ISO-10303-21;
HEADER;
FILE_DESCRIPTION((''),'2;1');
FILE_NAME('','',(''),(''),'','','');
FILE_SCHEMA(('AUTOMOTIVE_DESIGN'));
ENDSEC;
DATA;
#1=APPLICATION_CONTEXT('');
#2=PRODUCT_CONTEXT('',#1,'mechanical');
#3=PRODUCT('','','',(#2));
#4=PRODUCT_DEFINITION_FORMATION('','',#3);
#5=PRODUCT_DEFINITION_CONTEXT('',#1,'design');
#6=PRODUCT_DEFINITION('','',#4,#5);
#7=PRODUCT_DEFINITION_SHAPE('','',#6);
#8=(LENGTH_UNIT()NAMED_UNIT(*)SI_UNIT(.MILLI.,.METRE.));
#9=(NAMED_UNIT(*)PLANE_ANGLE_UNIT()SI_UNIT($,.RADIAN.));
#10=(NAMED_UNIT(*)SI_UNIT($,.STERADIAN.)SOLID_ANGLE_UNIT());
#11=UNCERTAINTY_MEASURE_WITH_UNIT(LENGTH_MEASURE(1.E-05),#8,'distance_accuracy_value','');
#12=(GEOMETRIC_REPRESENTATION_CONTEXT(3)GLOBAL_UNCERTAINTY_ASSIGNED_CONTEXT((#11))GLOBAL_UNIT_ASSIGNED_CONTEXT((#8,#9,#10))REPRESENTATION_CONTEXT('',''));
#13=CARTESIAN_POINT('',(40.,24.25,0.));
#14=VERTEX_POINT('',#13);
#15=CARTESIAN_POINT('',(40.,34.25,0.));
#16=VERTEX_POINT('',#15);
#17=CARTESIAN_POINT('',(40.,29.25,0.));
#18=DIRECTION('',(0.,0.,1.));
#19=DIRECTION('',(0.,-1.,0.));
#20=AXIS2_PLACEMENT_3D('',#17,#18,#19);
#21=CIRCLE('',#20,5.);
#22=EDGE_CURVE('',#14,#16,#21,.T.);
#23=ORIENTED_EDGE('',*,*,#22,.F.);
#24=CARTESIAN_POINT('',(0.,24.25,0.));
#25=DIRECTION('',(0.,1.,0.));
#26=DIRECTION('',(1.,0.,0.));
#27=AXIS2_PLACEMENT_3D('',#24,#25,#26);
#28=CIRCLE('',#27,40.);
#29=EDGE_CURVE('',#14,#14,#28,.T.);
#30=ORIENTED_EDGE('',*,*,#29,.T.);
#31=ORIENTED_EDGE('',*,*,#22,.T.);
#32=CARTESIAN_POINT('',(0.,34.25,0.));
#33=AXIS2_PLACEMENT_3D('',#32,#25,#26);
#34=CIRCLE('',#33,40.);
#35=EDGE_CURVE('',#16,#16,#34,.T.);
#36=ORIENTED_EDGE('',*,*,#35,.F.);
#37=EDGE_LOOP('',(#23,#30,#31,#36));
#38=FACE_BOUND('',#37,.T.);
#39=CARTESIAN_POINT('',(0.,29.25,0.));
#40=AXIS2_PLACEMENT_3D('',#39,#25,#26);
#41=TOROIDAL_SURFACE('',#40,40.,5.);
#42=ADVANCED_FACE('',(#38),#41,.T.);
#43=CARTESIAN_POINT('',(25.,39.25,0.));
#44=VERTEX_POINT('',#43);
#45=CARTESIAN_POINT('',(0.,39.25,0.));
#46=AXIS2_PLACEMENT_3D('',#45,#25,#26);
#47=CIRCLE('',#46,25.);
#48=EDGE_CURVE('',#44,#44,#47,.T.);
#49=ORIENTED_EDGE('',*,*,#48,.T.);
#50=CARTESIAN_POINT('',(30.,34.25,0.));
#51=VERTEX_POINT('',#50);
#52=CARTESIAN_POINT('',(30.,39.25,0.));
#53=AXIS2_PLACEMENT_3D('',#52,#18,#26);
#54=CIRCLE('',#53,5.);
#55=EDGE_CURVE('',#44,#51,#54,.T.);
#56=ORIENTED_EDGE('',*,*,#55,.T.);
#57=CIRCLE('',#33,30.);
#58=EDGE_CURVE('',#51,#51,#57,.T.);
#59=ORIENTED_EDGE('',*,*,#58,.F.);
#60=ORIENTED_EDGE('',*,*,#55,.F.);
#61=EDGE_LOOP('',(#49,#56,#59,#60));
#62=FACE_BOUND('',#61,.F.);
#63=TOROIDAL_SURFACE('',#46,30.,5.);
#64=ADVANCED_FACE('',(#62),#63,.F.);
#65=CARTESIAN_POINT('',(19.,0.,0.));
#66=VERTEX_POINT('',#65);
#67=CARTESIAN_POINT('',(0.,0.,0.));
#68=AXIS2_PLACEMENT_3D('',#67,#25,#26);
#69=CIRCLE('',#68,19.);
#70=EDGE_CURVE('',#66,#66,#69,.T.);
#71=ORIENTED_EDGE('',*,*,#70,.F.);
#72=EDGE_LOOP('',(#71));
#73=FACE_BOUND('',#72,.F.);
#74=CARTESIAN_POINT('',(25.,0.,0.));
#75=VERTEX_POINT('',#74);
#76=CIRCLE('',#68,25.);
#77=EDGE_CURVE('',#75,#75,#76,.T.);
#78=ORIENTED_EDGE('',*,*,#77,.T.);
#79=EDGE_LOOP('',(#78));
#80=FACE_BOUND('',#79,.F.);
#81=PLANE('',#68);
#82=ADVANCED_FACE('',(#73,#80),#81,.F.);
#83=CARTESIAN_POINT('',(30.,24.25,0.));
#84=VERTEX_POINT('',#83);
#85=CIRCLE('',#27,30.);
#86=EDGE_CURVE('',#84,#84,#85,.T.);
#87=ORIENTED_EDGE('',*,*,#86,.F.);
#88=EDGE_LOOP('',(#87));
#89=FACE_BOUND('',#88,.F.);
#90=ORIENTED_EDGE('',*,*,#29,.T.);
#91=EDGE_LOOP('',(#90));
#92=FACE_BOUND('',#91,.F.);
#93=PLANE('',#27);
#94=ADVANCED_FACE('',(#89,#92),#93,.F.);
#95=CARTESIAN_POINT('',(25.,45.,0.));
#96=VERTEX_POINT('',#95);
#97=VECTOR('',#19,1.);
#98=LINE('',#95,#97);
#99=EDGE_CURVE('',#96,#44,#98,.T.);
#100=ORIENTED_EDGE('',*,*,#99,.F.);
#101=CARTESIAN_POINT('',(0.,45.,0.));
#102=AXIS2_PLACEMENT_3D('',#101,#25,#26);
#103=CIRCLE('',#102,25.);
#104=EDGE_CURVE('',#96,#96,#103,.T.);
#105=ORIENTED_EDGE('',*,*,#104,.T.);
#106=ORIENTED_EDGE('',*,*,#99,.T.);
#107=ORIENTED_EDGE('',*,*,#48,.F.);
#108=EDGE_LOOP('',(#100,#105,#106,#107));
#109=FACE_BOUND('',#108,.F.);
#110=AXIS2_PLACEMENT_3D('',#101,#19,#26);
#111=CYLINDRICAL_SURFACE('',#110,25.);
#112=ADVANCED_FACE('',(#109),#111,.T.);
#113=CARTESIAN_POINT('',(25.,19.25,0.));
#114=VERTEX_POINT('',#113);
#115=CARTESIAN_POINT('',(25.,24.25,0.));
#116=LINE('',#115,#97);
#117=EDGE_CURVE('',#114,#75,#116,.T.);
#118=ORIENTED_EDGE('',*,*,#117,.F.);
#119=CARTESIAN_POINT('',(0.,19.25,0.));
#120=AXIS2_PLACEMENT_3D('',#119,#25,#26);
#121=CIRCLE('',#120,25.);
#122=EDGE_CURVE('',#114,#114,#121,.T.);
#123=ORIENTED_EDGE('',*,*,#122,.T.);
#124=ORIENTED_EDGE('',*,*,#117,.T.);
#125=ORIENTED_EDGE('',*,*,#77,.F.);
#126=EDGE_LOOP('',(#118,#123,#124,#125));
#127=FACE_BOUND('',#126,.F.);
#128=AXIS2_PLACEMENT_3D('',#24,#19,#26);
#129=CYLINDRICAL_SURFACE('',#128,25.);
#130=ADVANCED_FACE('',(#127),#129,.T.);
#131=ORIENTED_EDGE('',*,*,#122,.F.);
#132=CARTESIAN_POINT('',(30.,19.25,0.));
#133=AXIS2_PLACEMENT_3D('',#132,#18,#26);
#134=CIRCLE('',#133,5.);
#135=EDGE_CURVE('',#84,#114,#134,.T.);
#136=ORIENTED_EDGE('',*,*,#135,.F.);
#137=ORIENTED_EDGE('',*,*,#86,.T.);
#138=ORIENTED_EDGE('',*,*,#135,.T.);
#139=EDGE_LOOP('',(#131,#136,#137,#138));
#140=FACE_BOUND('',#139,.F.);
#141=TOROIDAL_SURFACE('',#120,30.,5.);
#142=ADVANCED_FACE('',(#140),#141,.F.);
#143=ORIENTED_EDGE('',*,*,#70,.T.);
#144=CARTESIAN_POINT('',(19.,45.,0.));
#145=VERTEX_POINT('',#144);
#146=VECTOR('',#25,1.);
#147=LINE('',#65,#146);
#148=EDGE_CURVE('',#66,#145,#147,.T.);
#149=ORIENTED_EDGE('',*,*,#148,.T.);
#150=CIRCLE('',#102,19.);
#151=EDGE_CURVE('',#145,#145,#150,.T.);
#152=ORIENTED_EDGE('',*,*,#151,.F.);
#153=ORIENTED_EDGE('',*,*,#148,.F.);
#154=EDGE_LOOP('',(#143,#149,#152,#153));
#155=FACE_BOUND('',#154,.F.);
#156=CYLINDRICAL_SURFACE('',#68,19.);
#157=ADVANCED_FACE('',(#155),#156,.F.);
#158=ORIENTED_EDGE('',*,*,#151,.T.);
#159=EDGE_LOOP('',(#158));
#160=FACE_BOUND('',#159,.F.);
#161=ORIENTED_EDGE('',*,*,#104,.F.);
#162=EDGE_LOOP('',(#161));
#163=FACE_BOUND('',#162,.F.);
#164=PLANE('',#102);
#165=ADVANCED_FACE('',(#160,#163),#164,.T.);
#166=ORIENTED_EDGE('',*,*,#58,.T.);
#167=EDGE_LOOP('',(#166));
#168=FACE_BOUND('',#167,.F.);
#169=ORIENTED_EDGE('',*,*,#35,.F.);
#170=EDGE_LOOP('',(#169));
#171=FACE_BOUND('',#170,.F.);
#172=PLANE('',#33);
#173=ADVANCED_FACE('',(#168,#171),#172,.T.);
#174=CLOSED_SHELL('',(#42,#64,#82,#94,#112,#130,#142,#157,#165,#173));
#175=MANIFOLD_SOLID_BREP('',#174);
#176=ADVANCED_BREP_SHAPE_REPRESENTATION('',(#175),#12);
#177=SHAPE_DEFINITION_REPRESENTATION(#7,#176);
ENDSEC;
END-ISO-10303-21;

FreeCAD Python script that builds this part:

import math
import FreeCAD as App
import Part
import Sketcher
from FreeCAD import Vector
Q = App.Units.Quantity


def edges_at(feature, points):
    """Names of the edges that pass closest to the given points."""
    edges = feature.Shape.Edges
    near = lambda p: min(range(len(edges)), key=lambda i: edges[i].distToShape(Part.Vertex(*p))[0])
    return sorted({f"Edge{near(p) + 1}" for p in points})

doc = App.newDocument("Part")
body = doc.addObject("PartDesign::Body", "Body")

# Sketch on XY plane
sketch1 = body.newObject("Sketcher::SketchObject", "Sketch")
sketch1.AttachmentSupport = (doc.getObject("XY_Plane"), [""])
sketch1.MapMode = "FlatFace"
sketch1.addGeometry([
    Part.LineSegment(Vector(19, 45, 0), Vector(19, 0, 0)),  # 0
    Part.LineSegment(Vector(19, 0, 0), Vector(25, 0, 0)),  # 1
    Part.LineSegment(Vector(25, 0, 0), Vector(25, 24.25, 0)),  # 2
    Part.LineSegment(Vector(25, 24.25, 0), Vector(40, 24.25, 0)),  # 3
    Part.ArcOfCircle(Part.Circle(Vector(40, 29.25, 0), Vector(0, 0, 1), 5), math.radians(-90), math.radians(90)),  # 4
    Part.LineSegment(Vector(40, 34.25, 0), Vector(25, 34.25, 0)),  # 5
    Part.LineSegment(Vector(25, 34.25, 0), Vector(25, 45, 0)),  # 6
    Part.LineSegment(Vector(25, 45, 0), Vector(19, 45, 0)),  # 7
], False)
sketch1.addConstraint([
    Sketcher.Constraint("Coincident", 0, 2, 1, 1),
    Sketcher.Constraint("Coincident", 1, 2, 2, 1),
    Sketcher.Constraint("Coincident", 2, 2, 3, 1),
    Sketcher.Constraint("Tangent", 3, 2, 4, 1),
    Sketcher.Constraint("Tangent", 4, 2, 5, 1),
    Sketcher.Constraint("Coincident", 5, 2, 6, 1),
    Sketcher.Constraint("Coincident", 6, 2, 7, 1),
    Sketcher.Constraint("Coincident", 7, 2, 0, 1),
    Sketcher.Constraint("Vertical", 0),
    Sketcher.Constraint("Horizontal", 1),
    Sketcher.Constraint("Vertical", 2),
    Sketcher.Constraint("Horizontal", 3),
    Sketcher.Constraint("Horizontal", 5),
    Sketcher.Constraint("Vertical", 6),
    Sketcher.Constraint("Horizontal", 7),
    Sketcher.Constraint("PointOnObject", 0, 2, -1),
    Sketcher.Constraint("Vertical", 2, 2, 5, 2),
    Sketcher.Constraint("Radius", 4, Q("5 mm")),
    Sketcher.Constraint("DistanceX", 1, 1, 1, 2, Q("6 mm")),
    Sketcher.Constraint("DistanceY", 0, 2, 0, 1, Q("45 mm")),
    Sketcher.Constraint("DistanceX", 3, 1, 3, 2, Q("15 mm")),
    Sketcher.Constraint("DistanceX", -1, 1, 4, 3, Q("40 mm")),
    Sketcher.Constraint("DistanceY", 2, 1, 2, 2, Q("24.25 mm")),
])
revolution = body.newObject("PartDesign::Revolution", "Revolution")
revolution.Profile = sketch1
revolution.ReferenceAxis = (sketch1, ["V_Axis"])
revolution.Angle = 360
doc.recompute()

fillet = body.newObject("PartDesign::Fillet", "Fillet")
fillet.Base = (revolution, edges_at(revolution, [(-25, 34.25, 0), (-25, 24.25, 0)]))
fillet.Radius = 5

doc.recompute()
